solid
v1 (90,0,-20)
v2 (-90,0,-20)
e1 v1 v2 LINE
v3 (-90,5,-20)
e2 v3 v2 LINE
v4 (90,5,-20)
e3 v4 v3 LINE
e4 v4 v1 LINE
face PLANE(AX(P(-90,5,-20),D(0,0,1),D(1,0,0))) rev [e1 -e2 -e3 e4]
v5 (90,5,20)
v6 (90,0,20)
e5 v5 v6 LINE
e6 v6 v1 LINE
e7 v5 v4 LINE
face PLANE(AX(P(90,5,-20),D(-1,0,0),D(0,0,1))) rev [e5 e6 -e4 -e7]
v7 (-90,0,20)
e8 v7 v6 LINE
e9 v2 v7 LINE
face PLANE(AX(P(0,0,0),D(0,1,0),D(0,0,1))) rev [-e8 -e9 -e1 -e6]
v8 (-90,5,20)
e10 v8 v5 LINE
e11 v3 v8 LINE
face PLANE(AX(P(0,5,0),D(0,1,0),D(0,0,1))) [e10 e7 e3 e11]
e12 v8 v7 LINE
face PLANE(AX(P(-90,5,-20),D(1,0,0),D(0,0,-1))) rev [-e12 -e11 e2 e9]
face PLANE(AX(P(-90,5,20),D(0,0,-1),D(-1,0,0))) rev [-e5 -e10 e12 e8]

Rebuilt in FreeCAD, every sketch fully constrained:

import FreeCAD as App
import Part
import Sketcher
from FreeCAD import Vector

doc = App.newDocument("Part")
body = doc.addObject("PartDesign::Body", "Body")

# Sketch on XZ plane
sketch1 = body.newObject("Sketcher::SketchObject", "Sketch")
sketch1.AttachmentSupport = (doc.getObject("XZ_Plane"), [""])
sketch1.MapMode = "FlatFace"
sketch1.addGeometry(Part.LineSegment(Vector(-90, -20, 0), Vector(-90, 20, 0)), False)
sketch1.addGeometry(Part.LineSegment(Vector(-90, 20, 0), Vector(90, 20, 0)), False)
sketch1.addGeometry(Part.LineSegment(Vector(90, 20, 0), Vector(90, -20, 0)), False)
sketch1.addGeometry(Part.LineSegment(Vector(90, -20, 0), Vector(-90, -20, 0)), False)
sketch1.addConstraint(Sketcher.Constraint("Coincident", 0, 2, 1, 1))
sketch1.addConstraint(Sketcher.Constraint("Coincident", 1, 2, 2, 1))
sketch1.addConstraint(Sketcher.Constraint("Coincident", 2, 2, 3, 1))
sketch1.addConstraint(Sketcher.Constraint("Coincident", 3, 2, 0, 1))
sketch1.addConstraint(Sketcher.Constraint("Vertical", 0))
sketch1.addConstraint(Sketcher.Constraint("Horizontal", 1))
sketch1.addConstraint(Sketcher.Constraint("Vertical", 2))
sketch1.addConstraint(Sketcher.Constraint("Horizontal", 3))
sketch1.addConstraint(Sketcher.Constraint("Symmetric", 0, 2, 2, 2, -1, 1))
sketch1.addConstraint(Sketcher.Constraint("DistanceX", 1, 1, 1, 2, 180.0))
sketch1.addConstraint(Sketcher.Constraint("DistanceY", 0, 1, 0, 2, 40.0))
pad1 = body.newObject("PartDesign::Pad", "Pad")
pad1.Profile = sketch1
pad1.Length = 5
pad1.Reversed = True

doc.recompute()
